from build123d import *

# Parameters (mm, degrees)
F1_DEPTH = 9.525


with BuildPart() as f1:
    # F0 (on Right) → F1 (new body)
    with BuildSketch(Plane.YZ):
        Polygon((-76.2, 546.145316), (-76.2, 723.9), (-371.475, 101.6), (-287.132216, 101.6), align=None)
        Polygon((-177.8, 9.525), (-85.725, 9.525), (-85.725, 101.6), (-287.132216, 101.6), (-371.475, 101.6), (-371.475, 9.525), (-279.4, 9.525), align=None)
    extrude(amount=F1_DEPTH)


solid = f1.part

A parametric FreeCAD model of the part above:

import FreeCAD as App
import Part
import Sketcher
from FreeCAD import Vector
Q = App.Units.Quantity


def add_polygon(sketch, points):
    """Adds a closed chain of lines whose ends are joined by coincident constraints."""
    first, n = sketch.GeometryCount, len(points)
    for a, b in zip(points, points[1:] + points[:1]):
        sketch.addGeometry(Part.LineSegment(App.Vector(*a, 0), App.Vector(*b, 0)), False)
    for i in range(n):
        sketch.addConstraint(Sketcher.Constraint("Coincident", first + i, 2, first + (i + 1) % n, 1))

doc = App.newDocument("Part")
body = doc.addObject("PartDesign::Body", "Body")

sketch1 = body.newObject("Sketcher::SketchObject", "Sketch")
sketch1.AttachmentSupport = (doc.getObject("YZ_Plane"), [""])
sketch1.MapMode = "FlatFace"
add_polygon(sketch1, [(-76, 546), (-76, 724), (-371, 102), (-371, 10), (-86, 10), (-86, 102), (-287, 102)])
sketch1.addConstraint([
    Sketcher.Constraint("Vertical", 0),
    Sketcher.Constraint("Vertical", 2),
    Sketcher.Constraint("Horizontal", 3),
    Sketcher.Constraint("Vertical", 4),
    Sketcher.Constraint("Horizontal", 5),
    Sketcher.Constraint("Parallel", 1, 6),
    Sketcher.Constraint("Horizontal", 1, 2, 4, 2),
    Sketcher.Constraint("DistanceX", 0, 2, -1, 1, Q("3 in")),
    Sketcher.Constraint("DistanceY", -1, 1, 1, 2, Q("4 in")),
    Sketcher.Constraint("DistanceX", 3, 1, 3, 2, Q("11.25 in")),
    Sketcher.Constraint("DistanceY", -1, 1, 0, 2, Q("28.5 in")),
    Sketcher.Constraint("DistanceY", 2, 2, 2, 1, Q("3.625 in")),
    Sketcher.Constraint("DistanceX", 1, 2, -1, 1, Q("14.625 in")),
    Sketcher.Constraint("Distance", 6, 492.049731),
])
pad1 = body.newObject("PartDesign::Pad", "Pad")
pad1.Profile = sketch1
pad1.Length = Q("0.375 in")

doc.recompute()
